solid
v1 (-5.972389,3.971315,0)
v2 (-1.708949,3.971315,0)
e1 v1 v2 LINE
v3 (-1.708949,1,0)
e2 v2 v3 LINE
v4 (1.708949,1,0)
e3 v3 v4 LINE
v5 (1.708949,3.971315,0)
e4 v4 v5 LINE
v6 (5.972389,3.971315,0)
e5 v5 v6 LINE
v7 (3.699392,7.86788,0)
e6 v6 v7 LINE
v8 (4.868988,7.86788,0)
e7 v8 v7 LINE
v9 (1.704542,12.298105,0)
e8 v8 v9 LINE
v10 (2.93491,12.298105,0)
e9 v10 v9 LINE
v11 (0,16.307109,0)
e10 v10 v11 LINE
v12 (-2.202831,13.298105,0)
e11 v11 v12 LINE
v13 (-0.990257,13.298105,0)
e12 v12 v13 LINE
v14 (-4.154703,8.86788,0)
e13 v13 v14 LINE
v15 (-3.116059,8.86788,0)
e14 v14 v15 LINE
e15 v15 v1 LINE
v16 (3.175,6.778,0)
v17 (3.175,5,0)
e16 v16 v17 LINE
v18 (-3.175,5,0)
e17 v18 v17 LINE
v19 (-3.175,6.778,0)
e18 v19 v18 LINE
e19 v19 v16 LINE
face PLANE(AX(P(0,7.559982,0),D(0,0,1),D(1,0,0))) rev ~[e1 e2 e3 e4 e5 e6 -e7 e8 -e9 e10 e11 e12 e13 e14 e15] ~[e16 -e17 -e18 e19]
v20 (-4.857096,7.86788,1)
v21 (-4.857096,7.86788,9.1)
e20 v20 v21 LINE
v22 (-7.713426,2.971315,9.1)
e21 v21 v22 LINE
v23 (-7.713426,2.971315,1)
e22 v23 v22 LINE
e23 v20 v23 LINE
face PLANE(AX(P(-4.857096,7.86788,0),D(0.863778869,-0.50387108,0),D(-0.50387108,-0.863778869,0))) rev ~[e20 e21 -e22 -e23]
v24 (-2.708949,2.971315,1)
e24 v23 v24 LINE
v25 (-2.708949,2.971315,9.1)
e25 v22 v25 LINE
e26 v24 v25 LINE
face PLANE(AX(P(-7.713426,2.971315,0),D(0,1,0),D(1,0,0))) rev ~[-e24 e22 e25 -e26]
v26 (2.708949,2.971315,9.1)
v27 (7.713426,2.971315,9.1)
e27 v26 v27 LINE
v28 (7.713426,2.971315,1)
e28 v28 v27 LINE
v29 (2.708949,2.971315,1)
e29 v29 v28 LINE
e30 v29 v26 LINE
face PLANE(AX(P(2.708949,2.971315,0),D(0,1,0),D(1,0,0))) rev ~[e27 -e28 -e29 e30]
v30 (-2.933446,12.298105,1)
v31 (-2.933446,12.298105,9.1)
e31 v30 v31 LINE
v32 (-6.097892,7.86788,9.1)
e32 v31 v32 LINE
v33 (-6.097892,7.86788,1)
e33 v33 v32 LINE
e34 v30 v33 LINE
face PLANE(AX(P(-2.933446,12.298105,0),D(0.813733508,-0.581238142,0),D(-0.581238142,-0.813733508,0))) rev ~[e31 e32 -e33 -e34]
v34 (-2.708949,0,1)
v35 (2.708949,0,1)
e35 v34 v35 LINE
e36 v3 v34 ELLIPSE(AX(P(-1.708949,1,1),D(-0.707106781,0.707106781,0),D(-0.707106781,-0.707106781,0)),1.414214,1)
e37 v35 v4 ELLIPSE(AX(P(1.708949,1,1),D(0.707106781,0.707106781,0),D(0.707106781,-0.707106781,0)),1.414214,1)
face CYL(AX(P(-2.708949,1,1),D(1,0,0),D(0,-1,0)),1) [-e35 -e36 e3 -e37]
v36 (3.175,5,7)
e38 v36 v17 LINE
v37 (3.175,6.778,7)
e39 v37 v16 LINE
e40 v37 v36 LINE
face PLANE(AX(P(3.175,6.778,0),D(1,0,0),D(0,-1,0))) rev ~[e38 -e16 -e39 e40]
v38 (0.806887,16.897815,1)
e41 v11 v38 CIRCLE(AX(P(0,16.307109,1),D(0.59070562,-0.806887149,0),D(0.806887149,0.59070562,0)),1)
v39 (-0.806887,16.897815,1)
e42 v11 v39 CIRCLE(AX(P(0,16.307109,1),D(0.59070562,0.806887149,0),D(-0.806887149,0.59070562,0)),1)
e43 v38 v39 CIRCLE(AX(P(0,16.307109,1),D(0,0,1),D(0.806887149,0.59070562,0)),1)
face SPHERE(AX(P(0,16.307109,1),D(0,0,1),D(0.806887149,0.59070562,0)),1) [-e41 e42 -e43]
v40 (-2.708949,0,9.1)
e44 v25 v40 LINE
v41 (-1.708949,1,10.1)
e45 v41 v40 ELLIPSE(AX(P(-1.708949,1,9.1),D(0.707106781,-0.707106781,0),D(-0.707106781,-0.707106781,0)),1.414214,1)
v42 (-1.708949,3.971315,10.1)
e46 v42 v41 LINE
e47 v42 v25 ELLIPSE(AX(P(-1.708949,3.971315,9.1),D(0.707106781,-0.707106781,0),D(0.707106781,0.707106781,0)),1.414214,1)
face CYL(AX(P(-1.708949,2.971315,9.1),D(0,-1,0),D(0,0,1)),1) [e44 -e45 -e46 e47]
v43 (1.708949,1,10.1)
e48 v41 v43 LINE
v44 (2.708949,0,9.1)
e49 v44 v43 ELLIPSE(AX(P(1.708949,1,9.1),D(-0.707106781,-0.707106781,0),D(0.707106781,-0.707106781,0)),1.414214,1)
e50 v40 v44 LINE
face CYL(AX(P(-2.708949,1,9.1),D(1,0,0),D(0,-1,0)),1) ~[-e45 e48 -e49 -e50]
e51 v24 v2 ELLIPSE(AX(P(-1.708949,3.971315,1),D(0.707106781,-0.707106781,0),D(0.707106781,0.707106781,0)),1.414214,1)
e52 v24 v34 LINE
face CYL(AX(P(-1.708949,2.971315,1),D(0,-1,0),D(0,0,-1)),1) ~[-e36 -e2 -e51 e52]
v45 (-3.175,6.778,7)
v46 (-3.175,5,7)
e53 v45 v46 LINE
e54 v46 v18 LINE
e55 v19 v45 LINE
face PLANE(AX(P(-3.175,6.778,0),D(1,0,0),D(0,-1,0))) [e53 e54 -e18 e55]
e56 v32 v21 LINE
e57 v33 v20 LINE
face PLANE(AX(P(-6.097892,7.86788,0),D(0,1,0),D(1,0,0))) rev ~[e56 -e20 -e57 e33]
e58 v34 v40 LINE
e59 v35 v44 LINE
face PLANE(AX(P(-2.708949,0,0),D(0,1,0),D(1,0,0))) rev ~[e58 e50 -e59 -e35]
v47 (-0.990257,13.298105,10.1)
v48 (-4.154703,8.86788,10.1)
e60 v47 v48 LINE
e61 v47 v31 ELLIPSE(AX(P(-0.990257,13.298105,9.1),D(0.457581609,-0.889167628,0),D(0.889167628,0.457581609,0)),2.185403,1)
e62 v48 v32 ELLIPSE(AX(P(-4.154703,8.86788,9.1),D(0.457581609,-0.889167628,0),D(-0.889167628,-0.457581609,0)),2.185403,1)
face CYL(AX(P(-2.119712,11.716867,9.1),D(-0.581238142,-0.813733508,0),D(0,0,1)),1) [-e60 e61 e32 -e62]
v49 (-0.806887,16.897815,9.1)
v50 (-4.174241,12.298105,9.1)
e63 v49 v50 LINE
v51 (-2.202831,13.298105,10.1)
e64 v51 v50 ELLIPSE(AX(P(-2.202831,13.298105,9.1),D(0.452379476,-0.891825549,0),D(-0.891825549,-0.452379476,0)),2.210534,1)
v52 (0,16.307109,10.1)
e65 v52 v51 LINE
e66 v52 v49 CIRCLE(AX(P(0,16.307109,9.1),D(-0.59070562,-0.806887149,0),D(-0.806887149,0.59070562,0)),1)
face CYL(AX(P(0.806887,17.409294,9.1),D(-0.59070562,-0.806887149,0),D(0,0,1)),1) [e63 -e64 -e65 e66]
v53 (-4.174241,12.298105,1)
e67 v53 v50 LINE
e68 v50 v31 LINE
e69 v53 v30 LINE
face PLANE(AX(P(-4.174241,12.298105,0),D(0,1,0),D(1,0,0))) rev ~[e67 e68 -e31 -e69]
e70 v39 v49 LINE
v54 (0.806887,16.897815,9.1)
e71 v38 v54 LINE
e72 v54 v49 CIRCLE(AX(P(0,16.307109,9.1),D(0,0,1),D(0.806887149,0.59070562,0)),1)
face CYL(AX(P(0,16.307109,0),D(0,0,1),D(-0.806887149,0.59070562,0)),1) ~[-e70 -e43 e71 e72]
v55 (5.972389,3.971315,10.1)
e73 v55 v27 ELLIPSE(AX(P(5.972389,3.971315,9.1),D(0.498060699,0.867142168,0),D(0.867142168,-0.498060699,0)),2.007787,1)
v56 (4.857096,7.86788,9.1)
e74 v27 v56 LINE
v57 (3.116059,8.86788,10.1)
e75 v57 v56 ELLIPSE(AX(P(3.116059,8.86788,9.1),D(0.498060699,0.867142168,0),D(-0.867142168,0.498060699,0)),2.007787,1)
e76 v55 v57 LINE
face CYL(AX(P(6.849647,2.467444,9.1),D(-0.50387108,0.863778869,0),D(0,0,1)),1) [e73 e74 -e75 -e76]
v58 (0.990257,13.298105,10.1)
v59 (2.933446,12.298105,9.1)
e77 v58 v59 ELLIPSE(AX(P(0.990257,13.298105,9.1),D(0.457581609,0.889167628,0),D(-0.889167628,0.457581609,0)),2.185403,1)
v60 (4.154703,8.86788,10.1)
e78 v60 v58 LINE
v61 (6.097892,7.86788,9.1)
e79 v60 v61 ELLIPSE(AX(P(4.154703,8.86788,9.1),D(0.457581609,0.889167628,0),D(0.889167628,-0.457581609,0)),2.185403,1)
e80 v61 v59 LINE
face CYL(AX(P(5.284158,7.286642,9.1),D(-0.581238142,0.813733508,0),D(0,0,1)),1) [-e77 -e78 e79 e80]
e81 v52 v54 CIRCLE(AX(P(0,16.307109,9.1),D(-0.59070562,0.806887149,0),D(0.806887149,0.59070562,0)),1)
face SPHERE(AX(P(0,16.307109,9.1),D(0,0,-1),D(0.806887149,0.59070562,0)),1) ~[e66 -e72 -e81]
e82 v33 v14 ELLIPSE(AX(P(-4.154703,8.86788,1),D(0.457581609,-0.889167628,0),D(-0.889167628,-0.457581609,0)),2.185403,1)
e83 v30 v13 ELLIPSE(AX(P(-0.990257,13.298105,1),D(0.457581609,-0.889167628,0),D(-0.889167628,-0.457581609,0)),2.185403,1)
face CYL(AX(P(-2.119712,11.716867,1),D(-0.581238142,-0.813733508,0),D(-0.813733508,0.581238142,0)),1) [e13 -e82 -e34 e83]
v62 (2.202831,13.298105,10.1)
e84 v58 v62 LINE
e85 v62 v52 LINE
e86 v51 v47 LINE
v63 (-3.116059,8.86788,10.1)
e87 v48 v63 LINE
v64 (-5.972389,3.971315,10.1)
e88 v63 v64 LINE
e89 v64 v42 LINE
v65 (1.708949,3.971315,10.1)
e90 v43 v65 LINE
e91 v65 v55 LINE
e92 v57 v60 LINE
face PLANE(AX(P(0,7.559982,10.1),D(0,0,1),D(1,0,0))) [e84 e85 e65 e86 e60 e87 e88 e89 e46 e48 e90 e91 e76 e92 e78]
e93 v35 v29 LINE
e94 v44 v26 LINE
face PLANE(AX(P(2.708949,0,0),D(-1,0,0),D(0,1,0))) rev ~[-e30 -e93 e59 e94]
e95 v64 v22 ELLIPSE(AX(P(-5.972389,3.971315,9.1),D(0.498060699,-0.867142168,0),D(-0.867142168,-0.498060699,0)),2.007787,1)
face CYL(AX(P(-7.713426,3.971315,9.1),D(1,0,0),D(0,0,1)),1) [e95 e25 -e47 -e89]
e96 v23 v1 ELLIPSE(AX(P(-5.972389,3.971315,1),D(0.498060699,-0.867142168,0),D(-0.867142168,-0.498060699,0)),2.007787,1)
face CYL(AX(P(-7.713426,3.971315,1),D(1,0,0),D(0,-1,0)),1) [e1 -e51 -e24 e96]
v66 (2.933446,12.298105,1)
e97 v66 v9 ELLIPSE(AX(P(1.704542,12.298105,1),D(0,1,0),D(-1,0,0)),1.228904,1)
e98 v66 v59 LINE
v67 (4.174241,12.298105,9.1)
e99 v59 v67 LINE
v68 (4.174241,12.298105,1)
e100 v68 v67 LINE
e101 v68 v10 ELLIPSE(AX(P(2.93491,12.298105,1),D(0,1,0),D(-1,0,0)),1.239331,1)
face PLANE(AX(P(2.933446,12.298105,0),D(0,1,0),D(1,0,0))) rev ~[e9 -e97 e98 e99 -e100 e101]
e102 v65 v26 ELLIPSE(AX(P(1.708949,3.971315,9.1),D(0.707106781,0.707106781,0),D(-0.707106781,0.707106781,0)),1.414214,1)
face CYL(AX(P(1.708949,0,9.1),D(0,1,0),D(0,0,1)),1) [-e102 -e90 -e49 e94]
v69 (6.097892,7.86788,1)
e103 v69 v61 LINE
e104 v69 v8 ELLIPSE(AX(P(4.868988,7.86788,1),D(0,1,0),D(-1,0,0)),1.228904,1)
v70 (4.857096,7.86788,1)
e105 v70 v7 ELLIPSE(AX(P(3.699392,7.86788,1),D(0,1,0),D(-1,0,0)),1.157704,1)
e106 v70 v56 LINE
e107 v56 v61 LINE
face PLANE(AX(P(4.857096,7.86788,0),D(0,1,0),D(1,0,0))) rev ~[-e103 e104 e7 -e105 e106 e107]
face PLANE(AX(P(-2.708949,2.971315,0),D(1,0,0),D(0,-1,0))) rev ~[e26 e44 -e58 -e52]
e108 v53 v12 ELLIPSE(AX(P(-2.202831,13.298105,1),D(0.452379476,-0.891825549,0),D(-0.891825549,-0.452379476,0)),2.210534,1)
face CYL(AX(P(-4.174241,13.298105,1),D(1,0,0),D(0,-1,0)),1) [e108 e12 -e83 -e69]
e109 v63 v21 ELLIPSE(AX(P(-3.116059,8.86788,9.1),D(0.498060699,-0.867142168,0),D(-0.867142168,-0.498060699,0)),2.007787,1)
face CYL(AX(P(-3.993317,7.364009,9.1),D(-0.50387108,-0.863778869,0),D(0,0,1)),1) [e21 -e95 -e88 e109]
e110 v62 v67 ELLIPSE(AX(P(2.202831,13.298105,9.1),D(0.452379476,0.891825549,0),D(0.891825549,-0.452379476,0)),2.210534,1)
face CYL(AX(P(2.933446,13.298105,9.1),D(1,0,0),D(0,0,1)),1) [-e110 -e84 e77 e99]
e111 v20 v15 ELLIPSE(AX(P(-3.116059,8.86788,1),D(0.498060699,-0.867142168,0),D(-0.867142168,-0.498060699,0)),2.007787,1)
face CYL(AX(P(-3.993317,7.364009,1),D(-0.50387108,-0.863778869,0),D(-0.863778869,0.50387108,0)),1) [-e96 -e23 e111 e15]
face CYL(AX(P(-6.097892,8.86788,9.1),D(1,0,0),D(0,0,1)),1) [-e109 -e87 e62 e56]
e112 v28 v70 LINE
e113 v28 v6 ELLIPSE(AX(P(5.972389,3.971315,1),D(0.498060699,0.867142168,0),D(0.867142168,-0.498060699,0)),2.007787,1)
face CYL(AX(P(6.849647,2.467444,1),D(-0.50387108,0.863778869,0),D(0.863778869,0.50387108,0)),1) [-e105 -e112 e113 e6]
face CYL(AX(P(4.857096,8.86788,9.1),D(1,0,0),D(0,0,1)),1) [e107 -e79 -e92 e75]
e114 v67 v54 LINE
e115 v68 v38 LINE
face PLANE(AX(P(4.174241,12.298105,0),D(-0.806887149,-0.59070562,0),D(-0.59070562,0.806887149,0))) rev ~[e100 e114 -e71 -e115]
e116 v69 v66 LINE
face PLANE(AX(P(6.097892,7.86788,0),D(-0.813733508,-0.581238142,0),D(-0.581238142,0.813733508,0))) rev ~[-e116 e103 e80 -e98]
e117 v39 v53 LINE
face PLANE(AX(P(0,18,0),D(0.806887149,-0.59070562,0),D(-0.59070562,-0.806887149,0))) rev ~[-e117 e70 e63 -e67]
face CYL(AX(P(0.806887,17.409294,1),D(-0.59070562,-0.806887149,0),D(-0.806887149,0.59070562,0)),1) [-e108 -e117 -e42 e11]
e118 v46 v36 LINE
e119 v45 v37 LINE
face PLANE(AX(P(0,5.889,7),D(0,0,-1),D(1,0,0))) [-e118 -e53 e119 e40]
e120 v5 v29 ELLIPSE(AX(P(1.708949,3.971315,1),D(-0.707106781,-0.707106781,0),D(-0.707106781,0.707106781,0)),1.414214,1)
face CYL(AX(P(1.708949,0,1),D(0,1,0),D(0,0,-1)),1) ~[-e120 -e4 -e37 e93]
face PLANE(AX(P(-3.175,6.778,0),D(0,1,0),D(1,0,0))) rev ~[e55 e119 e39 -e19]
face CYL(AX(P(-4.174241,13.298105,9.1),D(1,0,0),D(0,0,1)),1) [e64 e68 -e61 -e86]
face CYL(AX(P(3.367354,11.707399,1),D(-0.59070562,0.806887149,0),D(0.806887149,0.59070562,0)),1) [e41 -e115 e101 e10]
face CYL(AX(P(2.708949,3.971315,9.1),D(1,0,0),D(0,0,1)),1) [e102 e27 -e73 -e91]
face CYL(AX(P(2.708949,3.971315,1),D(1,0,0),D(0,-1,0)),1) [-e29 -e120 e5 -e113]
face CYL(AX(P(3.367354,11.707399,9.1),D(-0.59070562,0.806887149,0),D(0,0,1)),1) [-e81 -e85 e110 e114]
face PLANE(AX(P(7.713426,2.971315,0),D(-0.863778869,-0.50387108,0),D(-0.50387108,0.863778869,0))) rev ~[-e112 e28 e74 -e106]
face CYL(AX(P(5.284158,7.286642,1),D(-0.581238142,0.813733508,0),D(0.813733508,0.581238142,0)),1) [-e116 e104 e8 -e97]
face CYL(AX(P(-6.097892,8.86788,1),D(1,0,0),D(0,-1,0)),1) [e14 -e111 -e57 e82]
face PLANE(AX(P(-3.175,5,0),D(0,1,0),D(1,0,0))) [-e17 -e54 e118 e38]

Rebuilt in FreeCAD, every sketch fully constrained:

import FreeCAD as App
import Part
import Sketcher
Q = App.Units.Quantity


def edges_at(feature, points):
    """Names of the edges that pass closest to the given points."""
    edges = feature.Shape.Edges
    near = lambda p: min(range(len(edges)), key=lambda i: edges[i].distToShape(Part.Vertex(*p))[0])
    return sorted({f"Edge{near(p) + 1}" for p in points})

doc = App.newDocument("Part")
params = doc.addObject("Spreadsheet::Sheet", "Params")
for row, (alias, value) in enumerate([
    ("pad1_length", "10.1 mm"),
    ("sketch2_width", "6.35 mm"),
    ("pocket1_length", "4.318 mm"),
    ("sketch3_width", "6.35 mm"),
    ("pocket2_length", "7 mm"),
    ("fillet_radius", "1 mm"),
], start=1):
    params.set(f"A{row}", alias)
    params.set(f"B{row}", "=" + value)
    params.setAlias(f"B{row}", alias)

body = doc.addObject("PartDesign::Body", "Body")

# Sketch on XY plane
sketch1 = body.newObject("Sketcher::SketchObject", "Sketch")
sketch1.AttachmentSupport = (doc.getObject("XY_Plane"), [""])
sketch1.MapMode = "FlatFace"
sketch1.addGeometry([
    Part.LineSegment(App.Vector(-2.708949, 0, 0), App.Vector(2.708949, 0, 0)),  # 0
    Part.LineSegment(App.Vector(2.708949, 0, 0), App.Vector(2.708949, 2.971315, 0)),  # 1
    Part.LineSegment(App.Vector(2.708949, 2.971315, 0), App.Vector(7.713426, 2.971315, 0)),  # 2
    Part.LineSegment(App.Vector(7.713426, 2.971315, 0), App.Vector(4.857096, 7.86788, 0)),  # 3
    Part.LineSegment(App.Vector(4.857096, 7.86788, 0), App.Vector(6.097892, 7.86788, 0)),  # 4
    Part.LineSegment(App.Vector(6.097892, 7.86788, 0), App.Vector(2.933446, 12.298105, 0)),  # 5
    Part.LineSegment(App.Vector(2.933446, 12.298105, 0), App.Vector(4.174241, 12.298105, 0)),  # 6
    Part.LineSegment(App.Vector(4.174241, 12.298105, 0), App.Vector(0, 18, 0)),  # 7
    Part.LineSegment(App.Vector(0, 18, 0), App.Vector(-4.174241, 12.298105, 0)),  # 8
    Part.LineSegment(App.Vector(-4.174241, 12.298105, 0), App.Vector(-2.933446, 12.298105, 0)),  # 9
    Part.LineSegment(App.Vector(-2.933446, 12.298105, 0), App.Vector(-6.097892, 7.86788, 0)),  # 10
    Part.LineSegment(App.Vector(-6.097892, 7.86788, 0), App.Vector(-4.857096, 7.86788, 0)),  # 11
    Part.LineSegment(App.Vector(-4.857096, 7.86788, 0), App.Vector(-7.713426, 2.971315, 0)),  # 12
    Part.LineSegment(App.Vector(-7.713426, 2.971315, 0), App.Vector(-2.708949, 2.971315, 0)),  # 13
    Part.LineSegment(App.Vector(-2.708949, 2.971315, 0), App.Vector(-2.708949, 0, 0)),  # 14
], False)
sketch1.addConstraint([
    Sketcher.Constraint("Coincident", 0, 2, 1, 1),
    Sketcher.Constraint("Coincident", 1, 2, 2, 1),
    Sketcher.Constraint("Coincident", 2, 2, 3, 1),
    Sketcher.Constraint("Coincident", 3, 2, 4, 1),
    Sketcher.Constraint("Coincident", 4, 2, 5, 1),
    Sketcher.Constraint("Coincident", 5, 2, 6, 1),
    Sketcher.Constraint("Coincident", 6, 2, 7, 1),
    Sketcher.Constraint("Coincident", 7, 2, 8, 1),
    Sketcher.Constraint("Coincident", 8, 2, 9, 1),
    Sketcher.Constraint("Coincident", 9, 2, 10, 1),
    Sketcher.Constraint("Coincident", 10, 2, 11, 1),
    Sketcher.Constraint("Coincident", 11, 2, 12, 1),
    Sketcher.Constraint("Coincident", 12, 2, 13, 1),
    Sketcher.Constraint("Coincident", 13, 2, 14, 1),
    Sketcher.Constraint("Coincident", 14, 2, 0, 1),
    Sketcher.Constraint("Horizontal", 0),
    Sketcher.Constraint("Vertical", 1),
    Sketcher.Constraint("Horizontal", 2),
    Sketcher.Constraint("Horizontal", 4),
    Sketcher.Constraint("Horizontal", 6),
    Sketcher.Constraint("Horizontal", 9),
    Sketcher.Constraint("Horizontal", 11),
    Sketcher.Constraint("Horizontal", 13),
    Sketcher.Constraint("Vertical", 14),
    Sketcher.Constraint("Symmetric", 0, 2, 14, 2, -1, 1),
    Sketcher.Constraint("Symmetric", 6, 2, 8, 2, -2),
    Sketcher.Constraint("Symmetric", 4, 2, 10, 2, -2),
    Sketcher.Constraint("Symmetric", 2, 2, 12, 2, -2),
    Sketcher.Constraint("PointOnObject", 7, 2, -2),
    Sketcher.Constraint("Equal", 4, 6),
    Sketcher.Constraint("Equal", 6, 9),
    Sketcher.Constraint("Equal", 9, 11),
    Sketcher.Constraint("DistanceY", -1, 1, 7, 2, Q("18 mm")),
    Sketcher.Constraint("Distance", 3, Q("5.668771 mm")),
    Sketcher.Constraint("Distance", 5, Q("5.444319 mm")),
    Sketcher.Constraint("DistanceX", 0, 1, 0, 2, Q("5.417898 mm")),
    Sketcher.Constraint("DistanceX", 2, 1, 2, 2, Q("5.004477 mm")),
    Sketcher.Constraint("DistanceX", 4, 1, 4, 2, Q("1.240796 mm")),
    Sketcher.Constraint("DistanceY", 1, 1, 1, 2, Q("2.971315 mm")),
    Sketcher.Constraint("DistanceY", -1, 1, 3, 2, Q("7.86788 mm")),
    Sketcher.Constraint("DistanceX", -1, 1, 6, 2, Q("4.174241 mm")),
])
pad1 = body.newObject("PartDesign::Pad", "Pad")
pad1.Profile = sketch1
pad1.setExpression("Length", "Params.pad1_length")

# Sketch on XY plane
sketch2 = body.newObject("Sketcher::SketchObject", "Sketch001")
sketch2.AttachmentSupport = (doc.getObject("XY_Plane"), [""])
sketch2.MapMode = "FlatFace"
sketch2.addGeometry([
    Part.LineSegment(App.Vector(-3.175, 5, 0), App.Vector(-3.175, 6.778, 0)),
    Part.LineSegment(App.Vector(-3.175, 6.778, 0), App.Vector(3.175, 6.778, 0)),
    Part.LineSegment(App.Vector(3.175, 6.778, 0), App.Vector(3.175, 5, 0)),
    Part.LineSegment(App.Vector(3.175, 5, 0), App.Vector(-3.175, 5, 0)),
], False)
sketch2.addConstraint([
    Sketcher.Constraint("Coincident", 0, 2, 1, 1),
    Sketcher.Constraint("Coincident", 1, 2, 2, 1),
    Sketcher.Constraint("Coincident", 2, 2, 3, 1),
    Sketcher.Constraint("Coincident", 3, 2, 0, 1),
    Sketcher.Constraint("Vertical", 0),
    Sketcher.Constraint("Horizontal", 1),
    Sketcher.Constraint("Vertical", 2),
    Sketcher.Constraint("Horizontal", 3),
    Sketcher.Constraint("DistanceY", -1, 1, 2, 2, Q("5 mm")),
    Sketcher.Constraint("DistanceX", 1, 1, 1, 2, Q("6.35 mm")),
    Sketcher.Constraint("DistanceY", 0, 1, 0, 2, Q("1.778 mm")),
    Sketcher.Constraint("DistanceX", 0, 2, -1, 1, Q("3.175 mm")),
])
sketch2.setExpression("Constraints[9]", "Params.sketch2_width")
pocket1 = body.newObject("PartDesign::Pocket", "Pocket")
pocket1.Profile = sketch2
pocket1.setExpression("Length", "Params.pocket1_length")
pocket1.Reversed = True

# Sketch on XY plane
sketch3 = body.newObject("Sketcher::SketchObject", "Sketch002")
sketch3.AttachmentSupport = (doc.getObject("XY_Plane"), [""])
sketch3.MapMode = "FlatFace"
sketch3.addGeometry([
    Part.LineSegment(App.Vector(-3.175, 5, 0), App.Vector(-3.175, 6.778, 0)),
    Part.LineSegment(App.Vector(-3.175, 6.778, 0), App.Vector(3.175, 6.778, 0)),
    Part.LineSegment(App.Vector(3.175, 6.778, 0), App.Vector(3.175, 5, 0)),
    Part.LineSegment(App.Vector(3.175, 5, 0), App.Vector(-3.175, 5, 0)),
], False)
sketch3.addConstraint([
    Sketcher.Constraint("Coincident", 0, 2, 1, 1),
    Sketcher.Constraint("Coincident", 1, 2, 2, 1),
    Sketcher.Constraint("Coincident", 2, 2, 3, 1),
    Sketcher.Constraint("Coincident", 3, 2, 0, 1),
    Sketcher.Constraint("Vertical", 0),
    Sketcher.Constraint("Horizontal", 1),
    Sketcher.Constraint("Vertical", 2),
    Sketcher.Constraint("Horizontal", 3),
    Sketcher.Constraint("DistanceY", -1, 1, 2, 2, Q("5 mm")),
    Sketcher.Constraint("DistanceX", 1, 1, 1, 2, Q("6.35 mm")),
    Sketcher.Constraint("DistanceY", 0, 1, 0, 2, Q("1.778 mm")),
    Sketcher.Constraint("DistanceX", 0, 2, -1, 1, Q("3.175 mm")),
])
sketch3.setExpression("Constraints[9]", "Params.sketch3_width")
pocket2 = body.newObject("PartDesign::Pocket", "Pocket001")
pocket2.Profile = sketch3
pocket2.setExpression("Length", "Params.pocket2_length")
pocket2.Reversed = True
doc.recompute()

fillet = body.newObject("PartDesign::Fillet", "Fillet")
fillet.Base = (pocket2, edges_at(pocket2, [
    (0, 18, 5.05),
    (-6.285, 5.42, 10.1),
    (-5.211, 2.971, 10.1),
    (-2.709, 1.486, 10.1),
    (0, 0, 10.1),
    (2.709, 1.486, 10.1),
    (5.211, 2.971, 10.1),
    (6.285, 5.42, 10.1),
    (5.477, 7.868, 10.1),
    (4.516, 10.083, 10.1),
    (3.554, 12.298, 10.1),
    (2.087, 15.149, 10.1),
    (-2.087, 15.149, 10.1),
    (-3.554, 12.298, 10.1),
    (-4.516, 10.083, 10.1),
    (-5.477, 7.868, 10.1),
    (4.516, 10.083, 0),
    (2.087, 15.149, 0),
    (-2.087, 15.149, 0),
    (-4.516, 10.083, 0),
    (-3.554, 12.298, 0),
    (-6.285, 5.42, 0),
    (-5.477, 7.868, 0),
    (-5.211, 2.971, 0),
    (-2.709, 1.486, 0),
    (0, 0, 0),
    (2.709, 1.486, 0),
    (5.211, 2.971, 0),
    (6.285, 5.42, 0),
]))
fillet.setExpression("Radius", "Params.fillet_radius")

doc.recompute()
